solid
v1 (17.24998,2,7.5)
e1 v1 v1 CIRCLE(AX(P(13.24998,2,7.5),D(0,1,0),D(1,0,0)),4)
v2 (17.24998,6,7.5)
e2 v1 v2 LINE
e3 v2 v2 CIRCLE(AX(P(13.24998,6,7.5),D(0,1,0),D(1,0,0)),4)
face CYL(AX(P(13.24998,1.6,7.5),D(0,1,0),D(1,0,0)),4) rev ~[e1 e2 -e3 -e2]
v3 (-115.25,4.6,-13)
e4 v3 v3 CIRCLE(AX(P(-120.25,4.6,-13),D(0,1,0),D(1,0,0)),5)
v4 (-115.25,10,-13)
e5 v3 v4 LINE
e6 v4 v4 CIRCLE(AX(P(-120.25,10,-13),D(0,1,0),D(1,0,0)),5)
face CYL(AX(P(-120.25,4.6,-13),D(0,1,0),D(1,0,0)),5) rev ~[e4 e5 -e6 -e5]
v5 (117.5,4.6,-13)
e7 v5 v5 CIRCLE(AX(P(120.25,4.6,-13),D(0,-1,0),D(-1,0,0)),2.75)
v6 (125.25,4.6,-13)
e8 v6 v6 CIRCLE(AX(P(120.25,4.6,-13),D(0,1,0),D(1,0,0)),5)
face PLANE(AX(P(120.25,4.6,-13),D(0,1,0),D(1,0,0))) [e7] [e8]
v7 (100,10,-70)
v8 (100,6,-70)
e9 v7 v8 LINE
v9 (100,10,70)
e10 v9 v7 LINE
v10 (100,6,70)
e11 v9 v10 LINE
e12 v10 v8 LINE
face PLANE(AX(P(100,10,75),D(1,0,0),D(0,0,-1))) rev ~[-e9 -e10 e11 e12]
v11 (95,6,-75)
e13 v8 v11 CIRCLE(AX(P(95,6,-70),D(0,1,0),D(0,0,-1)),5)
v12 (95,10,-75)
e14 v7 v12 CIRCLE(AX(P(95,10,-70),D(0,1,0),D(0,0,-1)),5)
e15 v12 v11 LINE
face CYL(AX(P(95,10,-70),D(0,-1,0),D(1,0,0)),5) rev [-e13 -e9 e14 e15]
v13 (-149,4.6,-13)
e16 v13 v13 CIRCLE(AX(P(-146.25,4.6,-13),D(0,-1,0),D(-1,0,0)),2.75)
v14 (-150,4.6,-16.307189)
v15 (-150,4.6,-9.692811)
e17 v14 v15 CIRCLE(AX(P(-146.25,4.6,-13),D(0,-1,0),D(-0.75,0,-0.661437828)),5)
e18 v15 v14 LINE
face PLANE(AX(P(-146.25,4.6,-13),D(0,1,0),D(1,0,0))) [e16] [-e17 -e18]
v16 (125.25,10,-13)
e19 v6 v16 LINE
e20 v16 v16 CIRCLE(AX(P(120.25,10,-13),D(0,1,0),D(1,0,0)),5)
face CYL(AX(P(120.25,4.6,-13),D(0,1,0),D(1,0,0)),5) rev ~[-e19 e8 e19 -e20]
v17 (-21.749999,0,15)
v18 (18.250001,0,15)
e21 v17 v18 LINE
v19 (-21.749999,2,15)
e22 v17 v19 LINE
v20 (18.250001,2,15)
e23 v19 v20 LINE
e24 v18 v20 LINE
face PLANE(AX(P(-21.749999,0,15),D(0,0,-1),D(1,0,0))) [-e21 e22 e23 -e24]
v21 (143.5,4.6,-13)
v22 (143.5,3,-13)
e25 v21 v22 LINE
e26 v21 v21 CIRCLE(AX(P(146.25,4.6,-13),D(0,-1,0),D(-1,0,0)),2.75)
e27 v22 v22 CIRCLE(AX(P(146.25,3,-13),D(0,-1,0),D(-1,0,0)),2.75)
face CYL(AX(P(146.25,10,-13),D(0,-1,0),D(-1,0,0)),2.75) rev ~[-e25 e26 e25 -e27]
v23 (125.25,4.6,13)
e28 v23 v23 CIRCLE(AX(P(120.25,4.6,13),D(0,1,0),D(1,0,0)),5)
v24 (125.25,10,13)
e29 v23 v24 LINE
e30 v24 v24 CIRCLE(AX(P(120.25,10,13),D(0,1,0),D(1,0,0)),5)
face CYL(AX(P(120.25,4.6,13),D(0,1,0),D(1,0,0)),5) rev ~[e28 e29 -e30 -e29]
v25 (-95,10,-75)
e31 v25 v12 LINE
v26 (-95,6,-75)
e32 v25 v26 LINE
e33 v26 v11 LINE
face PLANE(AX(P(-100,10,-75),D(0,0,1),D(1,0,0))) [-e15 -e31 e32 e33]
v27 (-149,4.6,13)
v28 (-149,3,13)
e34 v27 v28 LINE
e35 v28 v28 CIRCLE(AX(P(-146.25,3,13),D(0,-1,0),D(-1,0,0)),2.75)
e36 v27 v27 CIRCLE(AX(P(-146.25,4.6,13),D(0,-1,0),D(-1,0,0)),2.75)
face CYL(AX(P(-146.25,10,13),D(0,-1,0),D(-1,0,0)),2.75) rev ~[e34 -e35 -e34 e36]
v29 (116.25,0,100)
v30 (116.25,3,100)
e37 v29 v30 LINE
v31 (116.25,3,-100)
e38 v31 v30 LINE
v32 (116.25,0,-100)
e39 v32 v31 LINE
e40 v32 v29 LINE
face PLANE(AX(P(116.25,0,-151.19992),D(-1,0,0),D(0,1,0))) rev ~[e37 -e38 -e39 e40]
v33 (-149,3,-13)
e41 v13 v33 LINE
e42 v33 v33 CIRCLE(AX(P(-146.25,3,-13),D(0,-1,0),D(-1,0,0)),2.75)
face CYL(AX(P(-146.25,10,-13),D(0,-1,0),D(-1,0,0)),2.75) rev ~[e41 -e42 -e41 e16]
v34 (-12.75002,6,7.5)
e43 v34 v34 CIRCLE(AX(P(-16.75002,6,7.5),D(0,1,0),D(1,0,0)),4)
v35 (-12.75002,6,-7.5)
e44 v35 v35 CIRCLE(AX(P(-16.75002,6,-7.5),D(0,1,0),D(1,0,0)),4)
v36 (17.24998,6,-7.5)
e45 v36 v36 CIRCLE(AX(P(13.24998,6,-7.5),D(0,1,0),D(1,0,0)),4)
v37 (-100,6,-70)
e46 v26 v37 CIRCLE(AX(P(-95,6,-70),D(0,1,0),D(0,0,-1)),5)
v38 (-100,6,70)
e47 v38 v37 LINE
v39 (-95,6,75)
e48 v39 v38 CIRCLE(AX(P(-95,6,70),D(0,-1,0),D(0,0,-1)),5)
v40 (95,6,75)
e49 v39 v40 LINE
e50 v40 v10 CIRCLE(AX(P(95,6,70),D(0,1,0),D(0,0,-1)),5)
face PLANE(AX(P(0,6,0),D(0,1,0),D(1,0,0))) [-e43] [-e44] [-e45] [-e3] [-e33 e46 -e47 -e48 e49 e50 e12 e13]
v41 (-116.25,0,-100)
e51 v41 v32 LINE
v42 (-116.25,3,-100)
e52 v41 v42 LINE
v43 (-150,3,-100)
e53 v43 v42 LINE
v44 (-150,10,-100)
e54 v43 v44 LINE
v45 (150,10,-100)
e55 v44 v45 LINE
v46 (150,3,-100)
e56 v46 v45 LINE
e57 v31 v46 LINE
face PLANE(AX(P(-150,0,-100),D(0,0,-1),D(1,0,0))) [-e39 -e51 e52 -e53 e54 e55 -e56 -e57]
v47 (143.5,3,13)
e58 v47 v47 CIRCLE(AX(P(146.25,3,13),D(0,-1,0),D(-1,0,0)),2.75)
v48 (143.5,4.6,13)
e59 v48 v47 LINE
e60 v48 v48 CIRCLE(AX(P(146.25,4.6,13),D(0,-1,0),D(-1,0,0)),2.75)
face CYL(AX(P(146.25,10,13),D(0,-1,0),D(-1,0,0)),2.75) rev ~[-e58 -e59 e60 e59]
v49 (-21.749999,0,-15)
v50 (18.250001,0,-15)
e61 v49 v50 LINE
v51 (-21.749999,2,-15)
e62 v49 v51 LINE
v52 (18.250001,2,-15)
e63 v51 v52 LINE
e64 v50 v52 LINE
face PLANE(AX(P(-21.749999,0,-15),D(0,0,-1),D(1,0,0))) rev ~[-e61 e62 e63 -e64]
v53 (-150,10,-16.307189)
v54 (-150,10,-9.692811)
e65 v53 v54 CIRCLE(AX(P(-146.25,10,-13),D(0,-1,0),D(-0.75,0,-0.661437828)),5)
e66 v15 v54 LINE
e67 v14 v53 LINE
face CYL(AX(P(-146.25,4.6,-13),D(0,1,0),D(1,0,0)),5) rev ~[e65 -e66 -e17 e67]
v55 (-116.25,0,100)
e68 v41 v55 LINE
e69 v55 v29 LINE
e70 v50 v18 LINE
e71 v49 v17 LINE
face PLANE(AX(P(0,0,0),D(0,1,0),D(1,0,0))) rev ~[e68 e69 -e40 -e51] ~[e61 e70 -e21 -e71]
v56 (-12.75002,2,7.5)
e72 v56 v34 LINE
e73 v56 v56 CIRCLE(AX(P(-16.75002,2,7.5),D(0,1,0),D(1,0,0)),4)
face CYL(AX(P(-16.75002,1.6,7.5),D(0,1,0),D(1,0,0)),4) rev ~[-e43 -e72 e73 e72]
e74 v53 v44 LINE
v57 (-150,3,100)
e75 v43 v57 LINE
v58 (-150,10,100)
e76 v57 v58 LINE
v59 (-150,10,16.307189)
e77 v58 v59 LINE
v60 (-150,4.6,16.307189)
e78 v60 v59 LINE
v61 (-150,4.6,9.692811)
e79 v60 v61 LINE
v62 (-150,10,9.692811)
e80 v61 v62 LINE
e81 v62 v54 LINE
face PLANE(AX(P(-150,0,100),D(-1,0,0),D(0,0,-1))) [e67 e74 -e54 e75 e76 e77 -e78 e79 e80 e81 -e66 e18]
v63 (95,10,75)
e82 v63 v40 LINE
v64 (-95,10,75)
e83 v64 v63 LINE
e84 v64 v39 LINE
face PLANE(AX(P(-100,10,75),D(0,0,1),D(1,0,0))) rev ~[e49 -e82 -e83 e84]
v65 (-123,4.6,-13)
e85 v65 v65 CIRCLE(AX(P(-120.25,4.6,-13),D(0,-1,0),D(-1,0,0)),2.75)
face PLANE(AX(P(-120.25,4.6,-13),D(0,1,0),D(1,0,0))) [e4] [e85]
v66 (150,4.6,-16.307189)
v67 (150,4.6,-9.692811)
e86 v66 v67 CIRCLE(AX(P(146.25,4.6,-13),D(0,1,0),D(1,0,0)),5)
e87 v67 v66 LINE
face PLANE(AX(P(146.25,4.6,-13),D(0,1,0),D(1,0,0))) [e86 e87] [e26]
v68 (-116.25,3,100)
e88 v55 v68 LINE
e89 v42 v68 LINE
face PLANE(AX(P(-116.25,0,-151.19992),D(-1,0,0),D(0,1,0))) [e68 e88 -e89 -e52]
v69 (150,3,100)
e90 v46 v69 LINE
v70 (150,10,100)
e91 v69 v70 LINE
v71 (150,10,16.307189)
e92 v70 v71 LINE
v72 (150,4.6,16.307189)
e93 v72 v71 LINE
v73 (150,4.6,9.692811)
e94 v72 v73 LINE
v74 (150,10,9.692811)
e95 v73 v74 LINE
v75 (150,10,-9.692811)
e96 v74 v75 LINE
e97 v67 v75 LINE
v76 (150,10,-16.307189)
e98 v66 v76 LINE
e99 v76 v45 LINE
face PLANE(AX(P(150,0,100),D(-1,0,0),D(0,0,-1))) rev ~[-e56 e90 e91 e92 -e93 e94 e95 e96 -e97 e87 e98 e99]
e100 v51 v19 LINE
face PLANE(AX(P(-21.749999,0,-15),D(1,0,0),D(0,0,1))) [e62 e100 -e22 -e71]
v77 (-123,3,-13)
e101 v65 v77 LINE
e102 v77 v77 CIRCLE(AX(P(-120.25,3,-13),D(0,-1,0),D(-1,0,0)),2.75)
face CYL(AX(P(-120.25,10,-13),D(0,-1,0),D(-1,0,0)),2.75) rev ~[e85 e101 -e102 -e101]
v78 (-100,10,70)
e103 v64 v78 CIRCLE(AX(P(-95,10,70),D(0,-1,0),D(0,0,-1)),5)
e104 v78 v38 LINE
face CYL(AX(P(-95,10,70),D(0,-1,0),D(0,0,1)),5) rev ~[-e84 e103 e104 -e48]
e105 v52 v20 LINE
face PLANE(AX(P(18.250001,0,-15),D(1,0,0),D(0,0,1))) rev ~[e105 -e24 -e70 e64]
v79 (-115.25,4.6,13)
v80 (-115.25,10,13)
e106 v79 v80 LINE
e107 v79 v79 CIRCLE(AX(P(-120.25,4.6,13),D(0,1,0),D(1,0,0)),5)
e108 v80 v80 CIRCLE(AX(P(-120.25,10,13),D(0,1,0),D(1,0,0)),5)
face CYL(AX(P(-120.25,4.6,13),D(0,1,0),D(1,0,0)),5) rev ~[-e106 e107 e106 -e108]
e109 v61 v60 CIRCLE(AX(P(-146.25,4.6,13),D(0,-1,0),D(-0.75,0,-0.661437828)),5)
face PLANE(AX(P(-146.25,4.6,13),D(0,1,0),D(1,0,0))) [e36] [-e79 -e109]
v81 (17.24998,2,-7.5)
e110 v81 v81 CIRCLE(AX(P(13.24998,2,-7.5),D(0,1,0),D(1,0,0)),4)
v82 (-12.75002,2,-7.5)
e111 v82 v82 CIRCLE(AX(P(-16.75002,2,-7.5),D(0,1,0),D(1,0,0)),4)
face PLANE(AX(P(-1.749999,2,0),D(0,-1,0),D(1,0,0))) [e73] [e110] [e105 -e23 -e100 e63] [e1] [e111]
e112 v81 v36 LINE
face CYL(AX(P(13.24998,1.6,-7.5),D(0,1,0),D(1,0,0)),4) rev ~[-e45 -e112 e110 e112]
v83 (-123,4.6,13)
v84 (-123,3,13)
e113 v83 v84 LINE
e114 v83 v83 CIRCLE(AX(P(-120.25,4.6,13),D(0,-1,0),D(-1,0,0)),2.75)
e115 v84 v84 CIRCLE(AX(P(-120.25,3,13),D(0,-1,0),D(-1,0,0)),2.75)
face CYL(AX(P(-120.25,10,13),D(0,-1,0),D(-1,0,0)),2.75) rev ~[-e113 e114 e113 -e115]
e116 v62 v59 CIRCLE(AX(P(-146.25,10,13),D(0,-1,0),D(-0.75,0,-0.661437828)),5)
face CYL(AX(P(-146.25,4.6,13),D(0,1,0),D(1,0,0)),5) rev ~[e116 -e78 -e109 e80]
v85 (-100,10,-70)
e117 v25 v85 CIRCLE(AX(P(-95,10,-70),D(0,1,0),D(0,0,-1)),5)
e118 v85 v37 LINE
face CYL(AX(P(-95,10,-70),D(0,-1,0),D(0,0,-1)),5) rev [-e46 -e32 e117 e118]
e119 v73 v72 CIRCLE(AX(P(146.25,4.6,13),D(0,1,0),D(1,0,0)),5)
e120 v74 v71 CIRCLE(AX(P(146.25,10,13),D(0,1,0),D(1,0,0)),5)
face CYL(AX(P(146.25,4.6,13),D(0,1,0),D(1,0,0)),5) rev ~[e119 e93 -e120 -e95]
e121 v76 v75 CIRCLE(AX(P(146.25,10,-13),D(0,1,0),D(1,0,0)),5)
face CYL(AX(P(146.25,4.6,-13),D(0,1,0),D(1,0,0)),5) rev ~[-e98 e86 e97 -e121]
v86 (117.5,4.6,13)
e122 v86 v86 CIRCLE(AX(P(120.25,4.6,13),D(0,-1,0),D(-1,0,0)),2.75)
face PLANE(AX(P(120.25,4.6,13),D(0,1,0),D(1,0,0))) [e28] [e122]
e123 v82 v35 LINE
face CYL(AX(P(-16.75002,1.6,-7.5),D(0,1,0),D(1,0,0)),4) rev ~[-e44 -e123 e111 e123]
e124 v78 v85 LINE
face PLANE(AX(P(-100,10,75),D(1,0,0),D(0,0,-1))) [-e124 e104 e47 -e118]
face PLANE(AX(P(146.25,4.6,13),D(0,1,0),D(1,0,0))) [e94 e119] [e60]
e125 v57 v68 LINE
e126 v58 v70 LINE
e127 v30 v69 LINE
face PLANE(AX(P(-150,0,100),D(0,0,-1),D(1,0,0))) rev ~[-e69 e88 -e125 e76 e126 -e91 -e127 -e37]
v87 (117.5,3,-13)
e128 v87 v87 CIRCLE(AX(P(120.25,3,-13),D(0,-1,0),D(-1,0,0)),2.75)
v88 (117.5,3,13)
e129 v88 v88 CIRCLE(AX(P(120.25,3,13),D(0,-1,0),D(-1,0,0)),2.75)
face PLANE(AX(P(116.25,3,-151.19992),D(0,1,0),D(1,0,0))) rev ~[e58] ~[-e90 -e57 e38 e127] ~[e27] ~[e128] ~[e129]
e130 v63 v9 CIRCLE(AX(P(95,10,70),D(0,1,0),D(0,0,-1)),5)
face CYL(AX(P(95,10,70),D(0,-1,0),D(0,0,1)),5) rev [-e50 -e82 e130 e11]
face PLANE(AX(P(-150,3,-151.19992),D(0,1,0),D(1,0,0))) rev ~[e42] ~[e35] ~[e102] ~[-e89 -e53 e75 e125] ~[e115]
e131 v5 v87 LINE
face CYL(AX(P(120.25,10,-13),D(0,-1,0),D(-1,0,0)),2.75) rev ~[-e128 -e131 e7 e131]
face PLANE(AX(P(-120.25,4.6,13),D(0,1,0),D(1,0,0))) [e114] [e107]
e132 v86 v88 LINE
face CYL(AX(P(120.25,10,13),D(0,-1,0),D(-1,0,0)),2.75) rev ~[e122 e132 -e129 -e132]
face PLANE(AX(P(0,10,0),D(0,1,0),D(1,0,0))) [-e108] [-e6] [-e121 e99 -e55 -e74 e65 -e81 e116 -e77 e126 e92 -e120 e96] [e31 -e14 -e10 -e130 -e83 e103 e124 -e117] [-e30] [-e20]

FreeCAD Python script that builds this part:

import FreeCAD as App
import Part
import Sketcher


def edges_at(feature, points):
    """Names of the edges that pass closest to the given points."""
    edges = feature.Shape.Edges
    near = lambda p: min(range(len(edges)), key=lambda i: edges[i].distToShape(Part.Vertex(*p))[0])
    return sorted({f"Edge{near(p) + 1}" for p in points})


def add_polygon(sketch, points):
    """Adds a closed chain of lines whose ends are joined by coincident constraints."""
    first, n = sketch.GeometryCount, len(points)
    for a, b in zip(points, points[1:] + points[:1]):
        sketch.addGeometry(Part.LineSegment(App.Vector(*a, 0), App.Vector(*b, 0)), False)
    for i in range(n):
        sketch.addConstraint(Sketcher.Constraint("Coincident", first + i, 2, first + (i + 1) % n, 1))

doc = App.newDocument("Part")
body = doc.addObject("PartDesign::Body", "Body")

sketch1 = body.newObject("Sketcher::SketchObject", "Sketch")
sketch1.AttachmentSupport = (doc.getObject("XZ_Plane"), [""])
sketch1.MapMode = "FlatFace"
add_polygon(sketch1, [(-150, -100), (-150, 100), (150, 100), (150, -100)])
sketch1.addConstraint([
    Sketcher.Constraint("Vertical", 0),
    Sketcher.Constraint("Horizontal", 1),
    Sketcher.Constraint("Vertical", 2),
    Sketcher.Constraint("Horizontal", 3),
    Sketcher.Constraint("Symmetric", 0, 2, 2, 2, -1, 1),
    Sketcher.Constraint("DistanceX", 1, 1, 1, 2, 300.0),
    Sketcher.Constraint("DistanceY", 0, 1, 0, 2, 200.0),
])
pad1 = body.newObject("PartDesign::Pad", "Pad")
pad1.Profile = sketch1
pad1.Length = 10
pad1.Reversed = True

sketch2 = body.newObject("Sketcher::SketchObject", "Sketch001")
sketch2.AttachmentSupport = (doc.getObject("XY_Plane"), [""])
sketch2.MapMode = "FlatFace"
sketch2.AttachmentOffset = App.Placement(App.Vector(0, 0, 100), App.Rotation())
add_polygon(sketch2, [(-150, 3), (-150, 0), (-116.25, 0), (-116.25, 3)])
add_polygon(sketch2, [(116.25, 3), (116.25, 0), (150, 0), (150, 3)])
sketch2.addConstraint([
    Sketcher.Constraint("Vertical", 0),
    Sketcher.Constraint("Horizontal", 1),
    Sketcher.Constraint("Vertical", 2),
    Sketcher.Constraint("Horizontal", 3),
    Sketcher.Constraint("Vertical", 4),
    Sketcher.Constraint("Horizontal", 5),
    Sketcher.Constraint("Vertical", 6),
    Sketcher.Constraint("Horizontal", 7),
    Sketcher.Constraint("Symmetric", 1, 2, 4, 2, -1, 1),
    Sketcher.Constraint("Symmetric", 0, 2, 5, 2, -2),
    Sketcher.Constraint("Horizontal", 3, 2, 6, 2),
    Sketcher.Constraint("DistanceY", 0, 2, 0, 1, 3.0),
    Sketcher.Constraint("DistanceX", 0, 2, -1, 1, 150.0),
    Sketcher.Constraint("DistanceX", 1, 1, 1, 2, 33.75),
])
pocket1 = body.newObject("PartDesign::Pocket", "Pocket")
pocket1.Profile = sketch2
pocket1.Type = "ThroughAll"
pocket1.Midplane = True

sketch3 = body.newObject("Sketcher::SketchObject", "Sketch002")
sketch3.AttachmentSupport = (doc.getObject("XZ_Plane"), [""])
sketch3.MapMode = "FlatFace"
sketch3.AttachmentOffset = App.Placement(App.Vector(0, 0, -10), App.Rotation())
add_polygon(sketch3, [(-100, -75), (-100, 75), (100, 75), (100, -75)])
sketch3.addConstraint([
    Sketcher.Constraint("Vertical", 0),
    Sketcher.Constraint("Horizontal", 1),
    Sketcher.Constraint("Vertical", 2),
    Sketcher.Constraint("Horizontal", 3),
    Sketcher.Constraint("Symmetric", 0, 2, 2, 2, -1, 1),
    Sketcher.Constraint("DistanceX", 1, 1, 1, 2, 200.0),
    Sketcher.Constraint("DistanceY", 0, 1, 0, 2, 150.0),
])
pocket2 = body.newObject("PartDesign::Pocket", "Pocket001")
pocket2.Profile = sketch3
pocket2.Length = 4
pocket2.Reversed = True
doc.recompute()

fillet = body.newObject("PartDesign::Fillet", "Fillet")
fillet.Base = (pocket2, edges_at(pocket2, [
    (-100, 8, 75),
    (-100, 8, -75),
    (100, 8, -75),
    (100, 8, 75),
]))
fillet.Radius = 5

sketch4 = body.newObject("Sketcher::SketchObject", "Sketch003")
sketch4.AttachmentSupport = (doc.getObject("XZ_Plane"), [""])
sketch4.MapMode = "FlatFace"
sketch4.AttachmentOffset = App.Placement(App.Vector(0, 0, -10), App.Rotation())
sketch4.addGeometry([
    Part.Circle(App.Vector(146.25, -13, 0), App.Vector(0, 0, 1), 2.75),
    Part.Circle(App.Vector(120.25, -13, 0), App.Vector(0, 0, 1), 2.75),
    Part.Circle(App.Vector(120.25, 13, 0), App.Vector(0, 0, 1), 2.75),
    Part.Circle(App.Vector(146.25, 13, 0), App.Vector(0, 0, 1), 2.75),
    Part.Circle(App.Vector(-146.25, -13, 0), App.Vector(0, 0, 1), 2.75),
    Part.Circle(App.Vector(-120.25, -13, 0), App.Vector(0, 0, 1), 2.75),
    Part.Circle(App.Vector(-146.25, 13, 0), App.Vector(0, 0, 1), 2.75),
    Part.Circle(App.Vector(-120.25, 13, 0), App.Vector(0, 0, 1), 2.75),
], False)
sketch4.addConstraint([
    Sketcher.Constraint("Equal", 0, 1),
    Sketcher.Constraint("Equal", 1, 2),
    Sketcher.Constraint("Equal", 2, 3),
    Sketcher.Constraint("Equal", 3, 4),
    Sketcher.Constraint("Equal", 4, 5),
    Sketcher.Constraint("Equal", 5, 6),
    Sketcher.Constraint("Equal", 6, 7),
    Sketcher.Constraint("Symmetric", 3, 3, 4, 3, -1, 1),
    Sketcher.Constraint("Symmetric", 2, 3, 5, 3, -1, 1),
    Sketcher.Constraint("Symmetric", 0, 3, 6, 3, -1, 1),
    Sketcher.Constraint("Symmetric", 1, 3, 7, 3, -1, 1),
    Sketcher.Constraint("Symmetric", 0, 3, 4, 3, -2),
    Sketcher.Constraint("Symmetric", 1, 3, 5, 3, -2),
    Sketcher.Constraint("Horizontal", 0, 3, 1, 3),
    Sketcher.Constraint("Diameter", 0, 5.5),
    Sketcher.Constraint("DistanceY", 0, 3, -1, 1, 13.0),
    Sketcher.Constraint("DistanceX", 1, 3, 0, 3, 26.0),
    Sketcher.Constraint("DistanceX", 4, 3, 1, 3, 266.5),
])
doc.recompute()
hole = body.newObject("PartDesign::Hole", "Hole")
hole.Profile = sketch4
hole.ThreadType = "None"
hole.Diameter = 5.5
hole.DepthType = "ThroughAll"
hole.HoleCutType = "Counterbore"
hole.HoleCutDiameter = 10
hole.HoleCutDepth = 5.4
hole.Reversed = True

sketch5 = body.newObject("Sketcher::SketchObject", "Sketch004")
sketch5.AttachmentSupport = (doc.getObject("XZ_Plane"), [""])
sketch5.MapMode = "FlatFace"
add_polygon(sketch5, [(-21.749999, 15), (-21.749999, -15), (18.250001, -15), (18.250001, 15)])
sketch5.addConstraint([
    Sketcher.Constraint("Vertical", 0),
    Sketcher.Constraint("Horizontal", 1),
    Sketcher.Constraint("Vertical", 2),
    Sketcher.Constraint("Horizontal", 3),
    Sketcher.Constraint("DistanceX", 1, 1, 1, 2, 40.0),
    Sketcher.Constraint("DistanceY", 0, 2, 0, 1, 30.0),
    Sketcher.Constraint("DistanceY", 0, 2, -1, 1, 15.0),
    Sketcher.Constraint("DistanceX", 0, 2, -1, 1, 21.749999),
])
pocket3 = body.newObject("PartDesign::Pocket", "Pocket002")
pocket3.Profile = sketch5
pocket3.Length = 2

sketch6 = body.newObject("Sketcher::SketchObject", "Sketch005")
sketch6.AttachmentSupport = (doc.getObject("XZ_Plane"), [""])
sketch6.MapMode = "FlatFace"
sketch6.AttachmentOffset = App.Placement(App.Vector(0, 0, -6), App.Rotation())
sketch6.addGeometry([
    Part.Circle(App.Vector(13.24998, -7.5, 0), App.Vector(0, 0, 1), 2.25),
    Part.Circle(App.Vector(13.24998, 7.5, 0), App.Vector(0, 0, 1), 2.25),
    Part.Circle(App.Vector(-16.75002, -7.5, 0), App.Vector(0, 0, 1), 2.25),
    Part.Circle(App.Vector(-16.75002, 7.5, 0), App.Vector(0, 0, 1), 2.25),
], False)
sketch6.addConstraint([
    Sketcher.Constraint("Equal", 0, 1),
    Sketcher.Constraint("Equal", 1, 2),
    Sketcher.Constraint("Equal", 2, 3),
    Sketcher.Constraint("Symmetric", 0, 3, 1, 3, -1),
    Sketcher.Constraint("Symmetric", 2, 3, 3, 3, -1),
    Sketcher.Constraint("Horizontal", 0, 3, 2, 3),
    Sketcher.Constraint("Diameter", 0, 4.5),
    Sketcher.Constraint("DistanceY", 0, 3, 1, 3, 15.0),
    Sketcher.Constraint("DistanceX", 2, 3, 0, 3, 30.0),
    Sketcher.Constraint("DistanceX", -1, 1, 0, 3, 13.24998),
])
doc.recompute()
hole2 = body.newObject("PartDesign::Hole", "Hole001")
hole2.Profile = sketch6
hole2.ThreadType = "None"
hole2.Diameter = 4.5
hole2.DepthType = "Dimension"
hole2.Depth = 11.5
hole2.DrillPoint = "Angled"
hole2.DrillPointAngle = 118
hole2.HoleCutType = "Counterbore"
hole2.HoleCutDiameter = 8
hole2.HoleCutDepth = 4.4
hole2.Reversed = True

doc.recompute()
